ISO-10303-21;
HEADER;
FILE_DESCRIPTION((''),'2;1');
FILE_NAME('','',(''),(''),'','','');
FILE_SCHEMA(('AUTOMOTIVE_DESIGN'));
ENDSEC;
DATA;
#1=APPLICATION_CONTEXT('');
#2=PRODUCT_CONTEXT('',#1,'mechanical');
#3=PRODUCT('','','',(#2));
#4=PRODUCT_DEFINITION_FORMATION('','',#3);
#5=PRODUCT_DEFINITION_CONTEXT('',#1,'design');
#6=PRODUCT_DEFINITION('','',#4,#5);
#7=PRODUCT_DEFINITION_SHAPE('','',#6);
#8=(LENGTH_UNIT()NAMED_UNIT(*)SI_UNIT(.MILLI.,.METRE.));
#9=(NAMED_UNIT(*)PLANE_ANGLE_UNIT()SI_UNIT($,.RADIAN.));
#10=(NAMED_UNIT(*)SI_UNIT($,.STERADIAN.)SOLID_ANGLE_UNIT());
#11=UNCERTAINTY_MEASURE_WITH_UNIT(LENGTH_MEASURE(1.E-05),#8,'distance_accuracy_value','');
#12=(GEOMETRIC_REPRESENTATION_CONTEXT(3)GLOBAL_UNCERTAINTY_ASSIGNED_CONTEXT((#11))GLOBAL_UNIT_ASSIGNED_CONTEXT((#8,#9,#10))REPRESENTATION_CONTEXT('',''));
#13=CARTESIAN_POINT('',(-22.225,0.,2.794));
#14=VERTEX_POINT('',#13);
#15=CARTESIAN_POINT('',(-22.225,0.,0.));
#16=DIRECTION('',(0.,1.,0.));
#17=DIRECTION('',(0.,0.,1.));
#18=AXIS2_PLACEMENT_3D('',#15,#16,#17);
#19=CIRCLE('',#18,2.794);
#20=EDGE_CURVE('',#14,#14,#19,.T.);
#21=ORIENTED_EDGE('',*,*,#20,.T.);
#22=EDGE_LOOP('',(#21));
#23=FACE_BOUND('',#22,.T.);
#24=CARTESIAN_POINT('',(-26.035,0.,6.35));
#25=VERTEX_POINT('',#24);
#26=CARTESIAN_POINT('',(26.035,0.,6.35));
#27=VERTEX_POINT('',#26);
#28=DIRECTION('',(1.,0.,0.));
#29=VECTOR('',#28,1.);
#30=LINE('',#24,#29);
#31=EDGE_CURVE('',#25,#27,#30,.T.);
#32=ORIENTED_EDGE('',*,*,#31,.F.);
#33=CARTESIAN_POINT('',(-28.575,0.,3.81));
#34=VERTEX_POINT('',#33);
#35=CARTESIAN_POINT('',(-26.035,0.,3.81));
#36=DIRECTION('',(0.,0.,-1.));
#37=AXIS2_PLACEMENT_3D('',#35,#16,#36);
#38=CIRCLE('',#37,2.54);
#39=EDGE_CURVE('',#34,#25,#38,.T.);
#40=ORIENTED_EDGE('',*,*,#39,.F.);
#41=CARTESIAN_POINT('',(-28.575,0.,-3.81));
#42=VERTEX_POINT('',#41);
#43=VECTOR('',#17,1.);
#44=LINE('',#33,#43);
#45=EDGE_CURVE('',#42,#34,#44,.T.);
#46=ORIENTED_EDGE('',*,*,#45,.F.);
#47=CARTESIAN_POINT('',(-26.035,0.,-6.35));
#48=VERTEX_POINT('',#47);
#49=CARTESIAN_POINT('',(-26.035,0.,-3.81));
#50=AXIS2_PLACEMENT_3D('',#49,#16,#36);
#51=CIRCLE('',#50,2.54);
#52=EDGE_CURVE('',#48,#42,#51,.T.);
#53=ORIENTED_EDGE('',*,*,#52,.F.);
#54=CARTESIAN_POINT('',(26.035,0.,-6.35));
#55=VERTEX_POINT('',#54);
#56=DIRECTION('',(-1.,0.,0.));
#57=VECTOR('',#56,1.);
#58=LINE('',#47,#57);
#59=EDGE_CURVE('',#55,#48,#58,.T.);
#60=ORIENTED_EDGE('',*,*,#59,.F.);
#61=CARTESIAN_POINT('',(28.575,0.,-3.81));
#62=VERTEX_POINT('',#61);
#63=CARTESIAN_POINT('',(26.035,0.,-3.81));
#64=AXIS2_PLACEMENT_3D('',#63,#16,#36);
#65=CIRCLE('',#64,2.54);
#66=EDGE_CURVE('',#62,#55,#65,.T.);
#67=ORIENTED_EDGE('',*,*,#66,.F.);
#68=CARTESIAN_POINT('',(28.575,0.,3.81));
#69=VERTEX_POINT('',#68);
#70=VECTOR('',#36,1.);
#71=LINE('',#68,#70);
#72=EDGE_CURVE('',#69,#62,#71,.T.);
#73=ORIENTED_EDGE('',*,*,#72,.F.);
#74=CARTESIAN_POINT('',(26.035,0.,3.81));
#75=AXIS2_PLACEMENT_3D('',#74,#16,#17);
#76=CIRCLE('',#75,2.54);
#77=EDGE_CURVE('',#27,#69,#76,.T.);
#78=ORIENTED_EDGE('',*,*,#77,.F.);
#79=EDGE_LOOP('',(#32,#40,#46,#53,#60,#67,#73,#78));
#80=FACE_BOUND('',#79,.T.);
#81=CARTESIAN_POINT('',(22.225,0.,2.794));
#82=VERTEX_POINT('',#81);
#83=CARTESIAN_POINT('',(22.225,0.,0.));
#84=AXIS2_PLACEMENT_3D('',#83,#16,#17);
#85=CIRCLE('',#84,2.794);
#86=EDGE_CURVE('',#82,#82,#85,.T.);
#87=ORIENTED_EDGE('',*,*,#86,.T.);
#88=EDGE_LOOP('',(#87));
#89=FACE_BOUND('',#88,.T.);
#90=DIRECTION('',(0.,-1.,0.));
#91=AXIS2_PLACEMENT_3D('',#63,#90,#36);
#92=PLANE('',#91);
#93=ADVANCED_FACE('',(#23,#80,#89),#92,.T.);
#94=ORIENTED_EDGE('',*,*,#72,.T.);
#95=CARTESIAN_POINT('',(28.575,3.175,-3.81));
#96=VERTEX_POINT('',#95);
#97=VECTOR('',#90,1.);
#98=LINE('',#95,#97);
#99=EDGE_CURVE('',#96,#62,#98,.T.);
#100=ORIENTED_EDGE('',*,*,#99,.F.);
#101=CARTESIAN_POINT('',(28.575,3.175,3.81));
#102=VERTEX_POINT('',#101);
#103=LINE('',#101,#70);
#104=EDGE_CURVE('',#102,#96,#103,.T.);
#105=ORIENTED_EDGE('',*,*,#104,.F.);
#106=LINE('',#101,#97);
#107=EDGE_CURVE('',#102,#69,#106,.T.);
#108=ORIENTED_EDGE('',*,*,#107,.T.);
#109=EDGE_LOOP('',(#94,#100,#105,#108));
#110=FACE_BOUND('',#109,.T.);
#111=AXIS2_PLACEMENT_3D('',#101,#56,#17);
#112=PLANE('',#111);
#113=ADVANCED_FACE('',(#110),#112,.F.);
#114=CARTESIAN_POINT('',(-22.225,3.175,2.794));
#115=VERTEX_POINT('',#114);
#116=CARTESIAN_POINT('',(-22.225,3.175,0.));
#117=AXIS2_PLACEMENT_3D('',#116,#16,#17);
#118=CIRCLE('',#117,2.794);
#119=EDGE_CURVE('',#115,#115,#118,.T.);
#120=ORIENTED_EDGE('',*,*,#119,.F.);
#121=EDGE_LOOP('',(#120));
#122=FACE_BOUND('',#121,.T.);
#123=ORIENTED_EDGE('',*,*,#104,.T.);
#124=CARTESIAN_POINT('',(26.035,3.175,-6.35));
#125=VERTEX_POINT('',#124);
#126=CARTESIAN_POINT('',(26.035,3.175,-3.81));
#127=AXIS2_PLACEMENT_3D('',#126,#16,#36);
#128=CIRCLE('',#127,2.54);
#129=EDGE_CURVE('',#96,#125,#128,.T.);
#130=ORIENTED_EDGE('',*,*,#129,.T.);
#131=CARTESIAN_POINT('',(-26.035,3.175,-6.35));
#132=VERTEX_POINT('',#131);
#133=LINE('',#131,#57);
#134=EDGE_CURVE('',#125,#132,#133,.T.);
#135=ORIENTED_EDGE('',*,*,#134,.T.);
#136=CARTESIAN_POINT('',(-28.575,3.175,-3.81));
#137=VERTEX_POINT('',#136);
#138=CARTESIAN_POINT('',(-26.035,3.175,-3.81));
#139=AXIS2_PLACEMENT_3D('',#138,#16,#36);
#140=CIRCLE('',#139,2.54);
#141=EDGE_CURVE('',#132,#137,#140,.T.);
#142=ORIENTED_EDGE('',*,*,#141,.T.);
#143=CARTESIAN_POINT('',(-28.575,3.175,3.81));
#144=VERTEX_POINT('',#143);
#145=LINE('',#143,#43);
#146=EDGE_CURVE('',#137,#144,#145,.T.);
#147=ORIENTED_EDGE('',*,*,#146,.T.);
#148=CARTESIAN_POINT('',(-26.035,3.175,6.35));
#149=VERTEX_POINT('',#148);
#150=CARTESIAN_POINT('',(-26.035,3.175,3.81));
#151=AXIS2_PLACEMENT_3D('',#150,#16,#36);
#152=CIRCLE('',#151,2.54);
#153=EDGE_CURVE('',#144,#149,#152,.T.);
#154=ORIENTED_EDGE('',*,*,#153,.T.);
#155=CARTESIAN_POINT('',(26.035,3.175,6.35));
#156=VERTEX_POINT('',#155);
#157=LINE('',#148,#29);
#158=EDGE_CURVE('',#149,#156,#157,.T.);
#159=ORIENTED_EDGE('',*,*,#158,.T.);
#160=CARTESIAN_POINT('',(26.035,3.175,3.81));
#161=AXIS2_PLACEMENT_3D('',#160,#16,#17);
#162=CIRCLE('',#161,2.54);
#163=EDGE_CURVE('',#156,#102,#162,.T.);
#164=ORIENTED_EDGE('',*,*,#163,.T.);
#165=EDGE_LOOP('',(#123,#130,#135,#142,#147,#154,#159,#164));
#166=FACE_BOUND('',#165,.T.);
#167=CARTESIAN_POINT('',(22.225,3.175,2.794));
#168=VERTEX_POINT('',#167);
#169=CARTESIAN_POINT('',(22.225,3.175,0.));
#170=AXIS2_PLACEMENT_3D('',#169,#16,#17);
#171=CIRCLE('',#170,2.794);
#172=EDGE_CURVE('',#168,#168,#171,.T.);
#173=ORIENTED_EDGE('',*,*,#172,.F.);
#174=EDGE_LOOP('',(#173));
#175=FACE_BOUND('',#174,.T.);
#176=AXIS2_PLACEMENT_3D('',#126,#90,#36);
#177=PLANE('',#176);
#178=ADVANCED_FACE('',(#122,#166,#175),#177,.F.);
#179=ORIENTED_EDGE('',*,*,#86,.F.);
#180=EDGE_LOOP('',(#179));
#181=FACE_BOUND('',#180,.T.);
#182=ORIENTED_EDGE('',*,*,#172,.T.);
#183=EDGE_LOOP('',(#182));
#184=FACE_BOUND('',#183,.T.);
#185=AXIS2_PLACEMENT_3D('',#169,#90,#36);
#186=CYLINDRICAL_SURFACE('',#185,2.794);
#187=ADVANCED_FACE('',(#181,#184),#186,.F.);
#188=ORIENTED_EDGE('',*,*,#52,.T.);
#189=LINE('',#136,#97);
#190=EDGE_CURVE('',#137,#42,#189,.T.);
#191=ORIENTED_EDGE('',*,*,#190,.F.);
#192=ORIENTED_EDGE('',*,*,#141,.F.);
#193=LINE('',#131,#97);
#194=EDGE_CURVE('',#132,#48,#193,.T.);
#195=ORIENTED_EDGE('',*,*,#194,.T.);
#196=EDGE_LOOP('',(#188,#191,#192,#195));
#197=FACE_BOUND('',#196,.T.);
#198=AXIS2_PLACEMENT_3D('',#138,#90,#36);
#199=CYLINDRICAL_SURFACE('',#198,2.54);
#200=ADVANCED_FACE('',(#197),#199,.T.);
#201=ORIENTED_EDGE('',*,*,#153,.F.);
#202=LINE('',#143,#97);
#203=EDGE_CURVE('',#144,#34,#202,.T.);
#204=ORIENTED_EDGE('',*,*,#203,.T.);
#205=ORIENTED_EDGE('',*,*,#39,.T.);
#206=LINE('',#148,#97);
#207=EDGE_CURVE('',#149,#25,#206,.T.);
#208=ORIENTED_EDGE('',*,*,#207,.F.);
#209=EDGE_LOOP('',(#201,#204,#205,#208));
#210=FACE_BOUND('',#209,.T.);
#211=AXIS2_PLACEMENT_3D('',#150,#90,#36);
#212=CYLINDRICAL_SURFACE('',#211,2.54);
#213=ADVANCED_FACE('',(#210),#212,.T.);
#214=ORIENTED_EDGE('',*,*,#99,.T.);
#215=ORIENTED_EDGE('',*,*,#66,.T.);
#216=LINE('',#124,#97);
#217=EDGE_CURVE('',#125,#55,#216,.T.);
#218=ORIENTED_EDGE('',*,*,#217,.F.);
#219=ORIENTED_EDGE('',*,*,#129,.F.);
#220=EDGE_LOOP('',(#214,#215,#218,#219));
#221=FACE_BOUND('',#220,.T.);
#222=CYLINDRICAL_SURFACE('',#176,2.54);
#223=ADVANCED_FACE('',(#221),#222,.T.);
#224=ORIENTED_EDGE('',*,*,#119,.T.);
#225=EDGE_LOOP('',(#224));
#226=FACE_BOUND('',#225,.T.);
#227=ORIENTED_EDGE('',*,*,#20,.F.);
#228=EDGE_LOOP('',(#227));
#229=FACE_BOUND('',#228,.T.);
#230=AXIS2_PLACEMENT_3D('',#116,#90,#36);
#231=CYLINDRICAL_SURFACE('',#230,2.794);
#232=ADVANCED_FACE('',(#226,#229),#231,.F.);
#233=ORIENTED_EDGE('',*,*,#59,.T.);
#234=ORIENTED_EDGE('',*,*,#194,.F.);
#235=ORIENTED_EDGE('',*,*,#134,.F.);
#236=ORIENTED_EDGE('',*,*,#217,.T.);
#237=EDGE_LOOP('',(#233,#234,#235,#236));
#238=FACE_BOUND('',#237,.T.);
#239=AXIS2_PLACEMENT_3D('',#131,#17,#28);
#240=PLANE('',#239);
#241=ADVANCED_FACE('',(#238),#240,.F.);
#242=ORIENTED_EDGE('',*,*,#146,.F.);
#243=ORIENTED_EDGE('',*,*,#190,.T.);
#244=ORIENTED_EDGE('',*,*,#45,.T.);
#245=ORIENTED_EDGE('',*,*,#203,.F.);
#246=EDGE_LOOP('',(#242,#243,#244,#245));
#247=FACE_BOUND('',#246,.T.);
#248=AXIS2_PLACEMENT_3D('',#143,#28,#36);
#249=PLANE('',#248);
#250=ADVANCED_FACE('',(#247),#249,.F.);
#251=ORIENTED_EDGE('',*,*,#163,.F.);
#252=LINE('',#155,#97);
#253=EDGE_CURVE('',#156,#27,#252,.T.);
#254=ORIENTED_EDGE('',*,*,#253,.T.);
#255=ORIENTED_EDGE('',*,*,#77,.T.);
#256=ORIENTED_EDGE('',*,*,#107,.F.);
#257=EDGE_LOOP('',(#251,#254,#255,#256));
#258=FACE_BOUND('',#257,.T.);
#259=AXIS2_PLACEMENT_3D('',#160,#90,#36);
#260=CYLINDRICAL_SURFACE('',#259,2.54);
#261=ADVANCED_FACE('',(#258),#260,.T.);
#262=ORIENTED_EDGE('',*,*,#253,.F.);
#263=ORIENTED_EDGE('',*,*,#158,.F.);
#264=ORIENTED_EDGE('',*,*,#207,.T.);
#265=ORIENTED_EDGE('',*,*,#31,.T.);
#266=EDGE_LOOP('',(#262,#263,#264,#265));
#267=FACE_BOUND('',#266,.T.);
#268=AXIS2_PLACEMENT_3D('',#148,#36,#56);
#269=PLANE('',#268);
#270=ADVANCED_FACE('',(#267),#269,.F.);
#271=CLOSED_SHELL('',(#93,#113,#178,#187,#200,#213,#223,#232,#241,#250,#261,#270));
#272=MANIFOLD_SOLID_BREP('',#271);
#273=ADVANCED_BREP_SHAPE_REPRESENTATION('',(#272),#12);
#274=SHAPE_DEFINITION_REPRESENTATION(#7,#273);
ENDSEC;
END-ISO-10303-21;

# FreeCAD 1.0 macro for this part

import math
import FreeCAD as App
import Part
import Sketcher
Q = App.Units.Quantity

doc = App.newDocument("Part")
body = doc.addObject("PartDesign::Body", "Body")

# Sketch on XZ plane
sketch1 = body.newObject("Sketcher::SketchObject", "Sketch")
sketch1.AttachmentSupport = (doc.getObject("XZ_Plane"), [""])
sketch1.MapMode = "FlatFace"
sketch1.addGeometry([
    Part.LineSegment(App.Vector(-26, 6.3, 0), App.Vector(26, 6.3, 0)),  # 0
    Part.ArcOfCircle(Part.Circle(App.Vector(26, 3.8, 0), App.Vector(0, 0, 1), 2.5), math.radians(0), math.radians(90)),  # 1
    Part.LineSegment(App.Vector(28.6, 3.8, 0), App.Vector(28.6, -3.8, 0)),  # 2
    Part.ArcOfCircle(Part.Circle(App.Vector(26, -3.8, 0), App.Vector(0, 0, 1), 2.5), math.radians(-90), math.radians(0)),  # 3
    Part.LineSegment(App.Vector(26, -6.3, 0), App.Vector(-26, -6.3, 0)),  # 4
    Part.ArcOfCircle(Part.Circle(App.Vector(-26, -3.8, 0), App.Vector(0, 0, 1), 2.5), math.radians(-180), math.radians(-90)),  # 5
    Part.LineSegment(App.Vector(-28.6, -3.8, 0), App.Vector(-28.6, 3.8, 0)),  # 6
    Part.ArcOfCircle(Part.Circle(App.Vector(-26, 3.8, 0), App.Vector(0, 0, 1), 2.5), math.radians(90), math.radians(180)),  # 7
    Part.Circle(App.Vector(-22.2, 0, 0), App.Vector(0, 0, 1), 2.8),  # 8
    Part.Circle(App.Vector(22.2, 0, 0), App.Vector(0, 0, 1), 2.8),  # 9
], False)
sketch1.addConstraint([
    Sketcher.Constraint("Tangent", 0, 2, 1, 2),
    Sketcher.Constraint("Tangent", 1, 1, 2, 1),
    Sketcher.Constraint("Tangent", 2, 2, 3, 2),
    Sketcher.Constraint("Tangent", 3, 1, 4, 1),
    Sketcher.Constraint("Tangent", 4, 2, 5, 2),
    Sketcher.Constraint("Tangent", 5, 1, 6, 1),
    Sketcher.Constraint("Tangent", 6, 2, 7, 2),
    Sketcher.Constraint("Tangent", 7, 1, 0, 1),
    Sketcher.Constraint("Horizontal", 0),
    Sketcher.Constraint("Vertical", 2),
    Sketcher.Constraint("Horizontal", 4),
    Sketcher.Constraint("Vertical", 6),
    Sketcher.Constraint("Equal", 1, 3),
    Sketcher.Constraint("Equal", 3, 5),
    Sketcher.Constraint("Equal", 5, 7),
    Sketcher.Constraint("Equal", 8, 9),
    Sketcher.Constraint("Symmetric", 1, 3, 5, 3, -1, 1),
    Sketcher.Constraint("Symmetric", 8, 3, 9, 3, -1, 1),
    Sketcher.Constraint("PointOnObject", 8, 3, -1),
    Sketcher.Constraint("Radius", 1, Q("0.1 in")),
    Sketcher.Constraint("Diameter", 8, Q("0.22 in")),
    Sketcher.Constraint("DistanceY", 2, 2, 2, 1, Q("0.3 in")),
    Sketcher.Constraint("DistanceX", 8, 3, 1, 1, Q("2 in")),
    Sketcher.Constraint("DistanceX", 0, 1, 0, 2, Q("2.05 in")),
])
pad1 = body.newObject("PartDesign::Pad", "Pad")
pad1.Profile = sketch1
pad1.Length = Q("0.125 in")
pad1.Reversed = True

doc.recompute()
